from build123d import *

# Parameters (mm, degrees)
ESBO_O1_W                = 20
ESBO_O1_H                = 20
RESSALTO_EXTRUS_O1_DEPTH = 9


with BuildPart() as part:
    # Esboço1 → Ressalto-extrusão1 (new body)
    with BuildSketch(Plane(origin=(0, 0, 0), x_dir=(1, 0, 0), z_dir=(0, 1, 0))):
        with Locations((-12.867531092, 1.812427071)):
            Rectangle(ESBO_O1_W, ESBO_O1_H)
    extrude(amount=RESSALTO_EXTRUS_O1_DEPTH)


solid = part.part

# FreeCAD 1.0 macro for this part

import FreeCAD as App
import Part
import Sketcher
from FreeCAD import Vector


def add_polygon(sketch, points):
    """Adds a closed chain of lines whose ends are joined by coincident constraints."""
    first, n = sketch.GeometryCount, len(points)
    for a, b in zip(points, points[1:] + points[:1]):
        sketch.addGeometry(Part.LineSegment(App.Vector(*a, 0), App.Vector(*b, 0)), False)
    for i in range(n):
        sketch.addConstraint(Sketcher.Constraint("Coincident", first + i, 2, first + (i + 1) % n, 1))

doc = App.newDocument("Part")
body = doc.addObject("PartDesign::Body", "Body")

# Sketch on XZ plane
sketch1 = body.newObject("Sketcher::SketchObject", "Sketch")
sketch1.AttachmentSupport = (doc.getObject("XZ_Plane"), [""])
sketch1.MapMode = "FlatFace"
add_polygon(sketch1, [(-23, -12), (-23, 8), (-3, 8), (-3, -12)])  # lines 0-3
sketch1.addConstraint([
    Sketcher.Constraint("Vertical", 0),
    Sketcher.Constraint("Horizontal", 1),
    Sketcher.Constraint("Vertical", 2),
    Sketcher.Constraint("Horizontal", 3),
    Sketcher.Constraint("Equal", 3, 0),
    Sketcher.Constraint("DistanceX", 1, 1, 1, 2, 20.0),
    Sketcher.Constraint("DistanceX", 0, 2, -1, 1, 22.867531),
    Sketcher.Constraint("DistanceY", -1, 1, 0, 2, 8.187573),
])
pad1 = body.newObject("PartDesign::Pad", "Pad")
pad1.Profile = sketch1
pad1.Length = 9
pad1.Reversed = True

doc.recompute()
